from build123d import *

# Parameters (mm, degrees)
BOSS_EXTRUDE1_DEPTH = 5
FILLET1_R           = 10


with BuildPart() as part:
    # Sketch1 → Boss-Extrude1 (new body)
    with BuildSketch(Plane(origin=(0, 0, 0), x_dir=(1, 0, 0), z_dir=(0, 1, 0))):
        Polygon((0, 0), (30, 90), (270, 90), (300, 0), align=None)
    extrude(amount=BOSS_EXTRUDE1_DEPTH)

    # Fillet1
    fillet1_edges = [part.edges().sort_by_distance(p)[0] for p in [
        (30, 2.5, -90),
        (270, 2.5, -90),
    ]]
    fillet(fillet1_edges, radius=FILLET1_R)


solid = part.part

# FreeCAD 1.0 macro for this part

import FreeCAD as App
import Part
import Sketcher
Q = App.Units.Quantity


def edges_at(feature, points):
    """Names of the edges that pass closest to the given points."""
    edges = feature.Shape.Edges
    near = lambda p: min(range(len(edges)), key=lambda i: edges[i].distToShape(Part.Vertex(*p))[0])
    return sorted({f"Edge{near(p) + 1}" for p in points})


def add_polygon(sketch, points):
    """Adds a closed chain of lines whose ends are joined by coincident constraints."""
    first, n = sketch.GeometryCount, len(points)
    for a, b in zip(points, points[1:] + points[:1]):
        sketch.addGeometry(Part.LineSegment(App.Vector(*a, 0), App.Vector(*b, 0)), False)
    for i in range(n):
        sketch.addConstraint(Sketcher.Constraint("Coincident", first + i, 2, first + (i + 1) % n, 1))

doc = App.newDocument("Part")
body = doc.addObject("PartDesign::Body", "Body")

sketch1 = body.newObject("Sketcher::SketchObject", "Sketch")
sketch1.AttachmentSupport = (doc.getObject("XZ_Plane"), [""])
sketch1.MapMode = "FlatFace"
add_polygon(sketch1, [(30, -90), (0, 0), (300, 0), (270, -90)])
sketch1.addConstraint([
    Sketcher.Constraint("Horizontal", 1),
    Sketcher.Constraint("Horizontal", 3),
    Sketcher.Constraint("Coincident", 0, 2, -1, 1),
    Sketcher.Constraint("Equal", 0, 2),
    Sketcher.Constraint("DistanceX", 1, 1, 1, 2, Q("300 mm")),
    Sketcher.Constraint("DistanceX", 3, 2, 3, 1, Q("240 mm")),
    Sketcher.Constraint("DistanceY", 2, 2, -1, 1, Q("90 mm")),
])
pad1 = body.newObject("PartDesign::Pad", "Pad")
pad1.Profile = sketch1
pad1.Length = 5
pad1.Reversed = True
doc.recompute()

fillet = body.newObject("PartDesign::Fillet", "Fillet")
fillet.Base = (pad1, edges_at(pad1, [(30, 2.5, -90), (270, 2.5, -90)]))
fillet.Radius = 10

doc.recompute()
